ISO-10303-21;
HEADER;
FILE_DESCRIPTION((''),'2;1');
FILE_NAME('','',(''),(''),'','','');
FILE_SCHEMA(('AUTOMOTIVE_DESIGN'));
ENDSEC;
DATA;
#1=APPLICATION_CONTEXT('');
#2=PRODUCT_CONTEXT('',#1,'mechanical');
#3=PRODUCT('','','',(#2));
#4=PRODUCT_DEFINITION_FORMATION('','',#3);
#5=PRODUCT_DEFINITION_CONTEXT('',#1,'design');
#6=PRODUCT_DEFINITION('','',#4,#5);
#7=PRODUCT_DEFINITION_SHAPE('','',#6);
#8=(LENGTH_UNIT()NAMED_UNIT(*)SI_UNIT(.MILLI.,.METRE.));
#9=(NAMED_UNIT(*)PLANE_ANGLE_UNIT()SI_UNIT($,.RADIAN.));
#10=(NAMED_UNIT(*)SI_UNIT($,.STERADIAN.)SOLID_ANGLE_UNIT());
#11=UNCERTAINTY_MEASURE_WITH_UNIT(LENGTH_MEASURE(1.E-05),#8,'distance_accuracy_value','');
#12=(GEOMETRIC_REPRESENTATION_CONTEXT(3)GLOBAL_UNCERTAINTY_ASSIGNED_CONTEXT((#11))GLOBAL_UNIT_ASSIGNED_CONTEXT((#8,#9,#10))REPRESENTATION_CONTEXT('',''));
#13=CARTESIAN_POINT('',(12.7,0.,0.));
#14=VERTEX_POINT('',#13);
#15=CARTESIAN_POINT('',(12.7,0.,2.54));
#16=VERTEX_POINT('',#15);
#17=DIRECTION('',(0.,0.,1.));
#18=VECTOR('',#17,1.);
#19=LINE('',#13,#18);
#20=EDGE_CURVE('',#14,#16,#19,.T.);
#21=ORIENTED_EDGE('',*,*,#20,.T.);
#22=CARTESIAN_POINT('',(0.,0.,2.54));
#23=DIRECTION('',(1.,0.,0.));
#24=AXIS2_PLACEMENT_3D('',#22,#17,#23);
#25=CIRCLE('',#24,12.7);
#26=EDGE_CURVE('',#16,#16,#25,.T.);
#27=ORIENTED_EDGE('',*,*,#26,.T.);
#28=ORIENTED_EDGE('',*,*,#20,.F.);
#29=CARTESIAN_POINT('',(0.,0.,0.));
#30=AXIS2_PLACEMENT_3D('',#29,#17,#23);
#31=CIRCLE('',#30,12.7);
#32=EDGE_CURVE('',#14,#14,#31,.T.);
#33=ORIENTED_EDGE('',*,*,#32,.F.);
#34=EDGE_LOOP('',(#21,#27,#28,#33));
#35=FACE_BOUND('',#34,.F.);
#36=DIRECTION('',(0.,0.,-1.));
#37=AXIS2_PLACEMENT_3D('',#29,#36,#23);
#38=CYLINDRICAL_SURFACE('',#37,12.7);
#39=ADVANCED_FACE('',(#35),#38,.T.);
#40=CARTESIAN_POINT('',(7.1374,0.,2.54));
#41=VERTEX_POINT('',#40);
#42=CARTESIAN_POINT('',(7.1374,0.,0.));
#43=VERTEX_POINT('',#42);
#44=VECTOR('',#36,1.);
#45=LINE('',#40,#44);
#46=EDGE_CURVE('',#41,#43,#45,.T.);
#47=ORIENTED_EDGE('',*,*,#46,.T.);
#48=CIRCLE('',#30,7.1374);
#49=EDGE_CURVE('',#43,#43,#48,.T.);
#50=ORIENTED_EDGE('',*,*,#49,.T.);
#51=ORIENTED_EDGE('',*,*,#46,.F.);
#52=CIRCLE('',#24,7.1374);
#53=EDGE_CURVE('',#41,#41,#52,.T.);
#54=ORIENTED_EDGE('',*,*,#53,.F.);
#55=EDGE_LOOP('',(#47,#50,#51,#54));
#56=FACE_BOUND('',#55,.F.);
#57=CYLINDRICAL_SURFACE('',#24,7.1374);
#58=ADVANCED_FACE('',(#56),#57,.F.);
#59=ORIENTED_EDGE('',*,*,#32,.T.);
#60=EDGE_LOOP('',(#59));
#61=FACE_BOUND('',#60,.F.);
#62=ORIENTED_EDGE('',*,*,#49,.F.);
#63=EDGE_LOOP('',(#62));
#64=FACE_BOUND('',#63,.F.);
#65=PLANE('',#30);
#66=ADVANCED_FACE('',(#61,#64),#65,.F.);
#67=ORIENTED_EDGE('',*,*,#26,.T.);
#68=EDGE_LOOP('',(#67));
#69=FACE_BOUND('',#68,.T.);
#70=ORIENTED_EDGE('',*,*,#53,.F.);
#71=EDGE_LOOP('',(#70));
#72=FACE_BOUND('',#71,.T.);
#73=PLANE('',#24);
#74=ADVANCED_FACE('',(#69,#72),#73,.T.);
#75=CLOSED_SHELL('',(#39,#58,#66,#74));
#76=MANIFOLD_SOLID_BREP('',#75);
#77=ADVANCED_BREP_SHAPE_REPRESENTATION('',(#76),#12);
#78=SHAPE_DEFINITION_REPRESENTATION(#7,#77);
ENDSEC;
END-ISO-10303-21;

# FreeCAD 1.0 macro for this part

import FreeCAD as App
import Part
import Sketcher
from FreeCAD import Vector
Q = App.Units.Quantity

doc = App.newDocument("Part")
body = doc.addObject("PartDesign::Body", "Body")

# Sketch on XY plane
sketch1 = doc.addObject("Sketcher::SketchObject", "Sketch")
body.addObject(sketch1)
sketch1.AttachmentSupport = (doc.XY_Plane, [""])
sketch1.MapMode = "FlatFace"
sketch1.addGeometry(Part.Circle(Vector(0, 0, 0), Vector(0, 0, 1), 13), False)
sketch1.addConstraint([
    Sketcher.Constraint("Coincident", 0, 3, -1, 1),
    Sketcher.Constraint("Diameter", 0, Q("1 in")),
])
pad1 = doc.addObject("PartDesign::Pad", "Pad")
body.addObject(pad1)
pad1.Profile = sketch1
pad1.Length = Q("0.1 in")

# Sketch on XY plane
sketch2 = doc.addObject("Sketcher::SketchObject", "Sketch001")
body.addObject(sketch2)
sketch2.AttachmentSupport = (doc.XY_Plane, [""])
sketch2.MapMode = "FlatFace"
sketch2.AttachmentOffset = App.Placement(Vector(0, 0, 0.1 * 25.4), App.Rotation())
sketch2.addGeometry(Part.Circle(Vector(0, 0, 0), Vector(0, 0, 1), 7), False)
sketch2.addConstraint([
    Sketcher.Constraint("Coincident", 0, 3, -1, 1),
    Sketcher.Constraint("Diameter", 0, Q("0.562 in")),
])
pocket1 = doc.addObject("PartDesign::Pocket", "Pocket")
body.addObject(pocket1)
pocket1.Profile = sketch2
pocket1.Length = Q("0.875 in")

doc.recompute()
